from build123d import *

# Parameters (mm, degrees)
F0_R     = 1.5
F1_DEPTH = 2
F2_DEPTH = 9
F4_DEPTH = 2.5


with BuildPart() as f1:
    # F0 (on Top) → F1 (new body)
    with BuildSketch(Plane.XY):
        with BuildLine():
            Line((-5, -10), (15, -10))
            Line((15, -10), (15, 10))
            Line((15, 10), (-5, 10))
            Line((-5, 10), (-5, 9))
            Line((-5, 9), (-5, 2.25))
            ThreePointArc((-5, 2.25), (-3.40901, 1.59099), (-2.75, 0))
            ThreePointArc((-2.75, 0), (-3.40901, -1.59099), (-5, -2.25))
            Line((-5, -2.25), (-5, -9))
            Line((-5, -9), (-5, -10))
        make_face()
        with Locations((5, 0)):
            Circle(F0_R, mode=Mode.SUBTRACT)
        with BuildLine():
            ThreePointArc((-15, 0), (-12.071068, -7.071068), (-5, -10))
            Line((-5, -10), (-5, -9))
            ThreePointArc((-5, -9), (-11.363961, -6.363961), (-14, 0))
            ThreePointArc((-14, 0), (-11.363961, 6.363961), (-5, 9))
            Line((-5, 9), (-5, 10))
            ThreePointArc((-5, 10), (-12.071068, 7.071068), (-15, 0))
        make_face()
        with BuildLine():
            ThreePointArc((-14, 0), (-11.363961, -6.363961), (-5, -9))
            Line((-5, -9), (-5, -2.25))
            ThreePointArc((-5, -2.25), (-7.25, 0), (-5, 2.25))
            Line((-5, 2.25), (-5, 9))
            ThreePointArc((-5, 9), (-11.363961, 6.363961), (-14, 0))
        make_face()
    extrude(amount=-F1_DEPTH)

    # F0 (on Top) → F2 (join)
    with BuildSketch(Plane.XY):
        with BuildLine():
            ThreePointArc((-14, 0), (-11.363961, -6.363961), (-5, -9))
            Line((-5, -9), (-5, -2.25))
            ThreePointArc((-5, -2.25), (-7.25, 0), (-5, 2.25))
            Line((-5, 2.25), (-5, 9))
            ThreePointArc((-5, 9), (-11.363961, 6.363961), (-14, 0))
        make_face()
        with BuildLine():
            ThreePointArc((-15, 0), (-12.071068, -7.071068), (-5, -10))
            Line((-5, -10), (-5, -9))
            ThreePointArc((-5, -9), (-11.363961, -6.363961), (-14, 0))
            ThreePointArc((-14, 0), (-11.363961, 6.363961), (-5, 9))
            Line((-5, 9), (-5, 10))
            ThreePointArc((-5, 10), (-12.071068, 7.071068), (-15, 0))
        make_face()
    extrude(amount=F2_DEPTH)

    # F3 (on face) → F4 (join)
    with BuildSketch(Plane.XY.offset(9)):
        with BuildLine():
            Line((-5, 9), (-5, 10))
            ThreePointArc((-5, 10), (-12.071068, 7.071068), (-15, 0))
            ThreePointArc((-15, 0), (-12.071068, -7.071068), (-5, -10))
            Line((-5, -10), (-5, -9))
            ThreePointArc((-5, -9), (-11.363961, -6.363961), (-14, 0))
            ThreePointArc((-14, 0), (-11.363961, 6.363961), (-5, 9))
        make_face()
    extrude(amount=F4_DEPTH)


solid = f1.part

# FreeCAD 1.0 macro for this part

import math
import FreeCAD as App
import Part
import Sketcher

V = App.Vector
Q = App.Units.Quantity

doc = App.newDocument("Part")
body = doc.addObject("PartDesign::Body", "Body")

# Sketch on XY plane
sketch1 = body.newObject("Sketcher::SketchObject", "Sketch")
sketch1.AttachmentSupport = (doc.getObject("XY_Plane"), [""])
sketch1.MapMode = "FlatFace"
sketch1.addGeometry(Part.LineSegment(V(-5, -10, 0), V(15, -10, 0)), False)
sketch1.addGeometry(Part.LineSegment(V(15, -10, 0), V(15, 10, 0)), False)
sketch1.addGeometry(Part.LineSegment(V(15, 10, 0), V(-5, 10, 0)), False)
sketch1.addGeometry(Part.ArcOfCircle(Part.Circle(V(-5.000001, 0.000001, 0), V(0, 0, 1), 9.999999), math.radians(89.999996), math.radians(180.000004)), False)
sketch1.addGeometry(Part.ArcOfCircle(Part.Circle(V(-5.000001, -0.000001, 0), V(0, 0, 1), 9.999999), math.radians(179.999996), math.radians(270.000004)), False)
sketch1.addGeometry(Part.ArcOfCircle(Part.Circle(V(-5.000001, -0.000001, 0), V(0, 0, 1), 2.250001), math.radians(0.000022), math.radians(89.999978)), False)
sketch1.addGeometry(Part.ArcOfCircle(Part.Circle(V(-5.000001, 0.000001, 0), V(0, 0, 1), 2.250001), math.radians(-89.999978), math.radians(-0.000022)), False)
sketch1.addGeometry(Part.ArcOfCircle(Part.Circle(V(-5, 0, 0), V(0, 0, 1), 2.25), math.radians(90), math.radians(270)), False)
sketch1.addGeometry(Part.Circle(V(5, 0, 0), V(0, 0, 1), 1.5), False)
sketch1.addConstraint(Sketcher.Constraint("Coincident", 0, 2, 1, 1))
sketch1.addConstraint(Sketcher.Constraint("Coincident", 1, 2, 2, 1))
sketch1.addConstraint(Sketcher.Constraint("Tangent", 2, 2, 3, 1))
sketch1.addConstraint(Sketcher.Constraint("Tangent", 3, 2, 4, 1))
sketch1.addConstraint(Sketcher.Constraint("Tangent", 4, 2, 0, 1))
sketch1.addConstraint(Sketcher.Constraint("Tangent", 5, 1, 6, 2))
sketch1.addConstraint(Sketcher.Constraint("Tangent", 6, 1, 7, 2))
sketch1.addConstraint(Sketcher.Constraint("Tangent", 7, 1, 5, 2))
sketch1.addConstraint(Sketcher.Constraint("Horizontal", 0))
sketch1.addConstraint(Sketcher.Constraint("Vertical", 1))
sketch1.addConstraint(Sketcher.Constraint("Horizontal", 2))
sketch1.addConstraint(Sketcher.Constraint("Coincident", 5, 3, 3, 3))
sketch1.addConstraint(Sketcher.Constraint("Equal", 3, 4))
sketch1.addConstraint(Sketcher.Constraint("Symmetric", 3, 3, 8, 3, -1, 1))
sketch1.addConstraint(Sketcher.Constraint("Symmetric", 6, 1, 7, 1, -1))
sketch1.addConstraint(Sketcher.Constraint("PointOnObject", 3, 2, -1))
sketch1.addConstraint(Sketcher.Constraint("PointOnObject", 5, 1, -1))
sketch1.addConstraint(Sketcher.Constraint("Vertical", 4, 2, 6, 1))
sketch1.addConstraint(Sketcher.Constraint("Equal", 2, 1))
sketch1.addConstraint(Sketcher.Constraint("Diameter", 8, Q("3 mm")))
sketch1.addConstraint(Sketcher.Constraint("Radius", 3, Q("9.999999 mm")))
sketch1.addConstraint(Sketcher.Constraint("Radius", 5, Q("2.250001 mm")))
sketch1.addConstraint(Sketcher.Constraint("DistanceX", 3, 3, -1, 1, Q("5.000001 mm")))
pad1 = body.newObject("PartDesign::Pad", "Pad")
pad1.Profile = sketch1
pad1.Length = 2
pad1.Reversed = True

# Sketch on XY plane
sketch2 = body.newObject("Sketcher::SketchObject", "Sketch001")
sketch2.AttachmentSupport = (doc.getObject("XY_Plane"), [""])
sketch2.MapMode = "FlatFace"
sketch2.addGeometry(Part.ArcOfCircle(Part.Circle(V(-5, 0, 0), V(0, 0, 1), 2.25), math.radians(90), math.radians(270)), False)
sketch2.addGeometry(Part.LineSegment(V(-5, 2.25, 0), V(-5, 10, 0)), False)
sketch2.addGeometry(Part.ArcOfCircle(Part.Circle(V(-5.000001, 0.000001, 0), V(0, 0, 1), 9.999999), math.radians(89.999996), math.radians(180.000004)), False)
sketch2.addGeometry(Part.ArcOfCircle(Part.Circle(V(-5.000001, -0.000001, 0), V(0, 0, 1), 9.999999), math.radians(179.999996), math.radians(270.000004)), False)
sketch2.addGeometry(Part.LineSegment(V(-5, -10, 0), V(-5, -2.25, 0)), False)
sketch2.addConstraint(Sketcher.Constraint("Coincident", 0, 1, 1, 1))
sketch2.addConstraint(Sketcher.Constraint("Coincident", 1, 2, 2, 1))
sketch2.addConstraint(Sketcher.Constraint("Tangent", 2, 2, 3, 1))
sketch2.addConstraint(Sketcher.Constraint("Coincident", 3, 2, 4, 1))
sketch2.addConstraint(Sketcher.Constraint("Coincident", 4, 2, 0, 2))
sketch2.addConstraint(Sketcher.Constraint("Vertical", 1))
sketch2.addConstraint(Sketcher.Constraint("Vertical", 4))
sketch2.addConstraint(Sketcher.Constraint("Coincident", 2, 3, 0, 3))
sketch2.addConstraint(Sketcher.Constraint("Equal", 2, 3))
sketch2.addConstraint(Sketcher.Constraint("Symmetric", 1, 2, 3, 2, -1))
sketch2.addConstraint(Sketcher.Constraint("PointOnObject", 2, 2, -1))
sketch2.addConstraint(Sketcher.Constraint("Vertical", 3, 3, 0, 1))
sketch2.addConstraint(Sketcher.Constraint("Radius", 2, Q("9.999999 mm")))
sketch2.addConstraint(Sketcher.Constraint("Radius", 0, Q("2.25 mm")))
sketch2.addConstraint(Sketcher.Constraint("DistanceX", 0, 3, -1, 1, Q("5 mm")))
pad2 = body.newObject("PartDesign::Pad", "Pad001")
pad2.Profile = sketch2
pad2.Length = 9

# Sketch on XY plane
sketch3 = body.newObject("Sketcher::SketchObject", "Sketch002")
sketch3.AttachmentSupport = (doc.getObject("XY_Plane"), [""])
sketch3.MapMode = "FlatFace"
sketch3.AttachmentOffset = App.Placement(V(0, 0, 9), App.Rotation())
sketch3.addGeometry(Part.LineSegment(V(-5, 9, 0), V(-5, 10, 0)), False)
sketch3.addGeometry(Part.ArcOfCircle(Part.Circle(V(-5.000001, 0.000001, 0), V(0, 0, 1), 9.999999), math.radians(89.999996), math.radians(180.000004)), False)
sketch3.addGeometry(Part.ArcOfCircle(Part.Circle(V(-5.000001, -0.000001, 0), V(0, 0, 1), 9.999999), math.radians(179.999996), math.radians(270.000004)), False)
sketch3.addGeometry(Part.LineSegment(V(-5, -10, 0), V(-5, -9, 0)), False)
sketch3.addGeometry(Part.ArcOfCircle(Part.Circle(V(-5, 0, 0), V(0, 0, 1), 9), math.radians(-179.999999), math.radians(-90.000001)), False)
sketch3.addGeometry(Part.ArcOfCircle(Part.Circle(V(-5, 0, 0), V(0, 0, 1), 9), math.radians(90.000001), math.radians(179.999999)), False)
sketch3.addConstraint(Sketcher.Constraint("Coincident", 0, 2, 1, 1))
sketch3.addConstraint(Sketcher.Constraint("Tangent", 1, 2, 2, 1))
sketch3.addConstraint(Sketcher.Constraint("Coincident", 2, 2, 3, 1))
sketch3.addConstraint(Sketcher.Constraint("Coincident", 3, 2, 4, 2))
sketch3.addConstraint(Sketcher.Constraint("Tangent", 4, 1, 5, 2))
sketch3.addConstraint(Sketcher.Constraint("Coincident", 5, 1, 0, 1))
sketch3.addConstraint(Sketcher.Constraint("Vertical", 0))
sketch3.addConstraint(Sketcher.Constraint("Vertical", 3))
sketch3.addConstraint(Sketcher.Constraint("Coincident", 4, 3, 1, 3))
sketch3.addConstraint(Sketcher.Constraint("Equal", 1, 2))
sketch3.addConstraint(Sketcher.Constraint("Equal", 4, 5))
sketch3.addConstraint(Sketcher.Constraint("Symmetric", 0, 2, 2, 2, -1))
sketch3.addConstraint(Sketcher.Constraint("PointOnObject", 1, 2, -1))
sketch3.addConstraint(Sketcher.Constraint("PointOnObject", 4, 1, -1))
sketch3.addConstraint(Sketcher.Constraint("Vertical", 5, 3, 0, 2))
sketch3.addConstraint(Sketcher.Constraint("Radius", 1, Q("9.999999 mm")))
sketch3.addConstraint(Sketcher.Constraint("Radius", 4, Q("9 mm")))
sketch3.addConstraint(Sketcher.Constraint("DistanceX", 1, 3, -1, 1, Q("5.000001 mm")))
pad3 = body.newObject("PartDesign::Pad", "Pad002")
pad3.Profile = sketch3
pad3.Length = 2.5

doc.recompute()
